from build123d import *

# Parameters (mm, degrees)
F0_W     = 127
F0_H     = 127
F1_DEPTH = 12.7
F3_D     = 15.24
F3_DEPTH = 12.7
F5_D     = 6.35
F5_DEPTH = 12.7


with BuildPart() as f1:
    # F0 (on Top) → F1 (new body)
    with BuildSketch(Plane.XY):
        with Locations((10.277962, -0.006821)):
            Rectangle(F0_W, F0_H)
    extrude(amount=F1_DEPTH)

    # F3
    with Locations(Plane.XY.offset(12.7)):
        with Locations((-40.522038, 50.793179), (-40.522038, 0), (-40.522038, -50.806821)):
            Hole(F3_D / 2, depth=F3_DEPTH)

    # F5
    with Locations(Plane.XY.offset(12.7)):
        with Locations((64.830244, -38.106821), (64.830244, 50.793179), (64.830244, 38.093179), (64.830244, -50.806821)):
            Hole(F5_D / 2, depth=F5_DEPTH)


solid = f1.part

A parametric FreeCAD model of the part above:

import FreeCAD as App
import Part
import Sketcher
Q = App.Units.Quantity

doc = App.newDocument("Part")
body = doc.addObject("PartDesign::Body", "Body")

sketch1 = body.newObject("Sketcher::SketchObject", "Sketch")
sketch1.AttachmentSupport = (doc.getObject("XY_Plane"), [""])
sketch1.MapMode = "FlatFace"
sketch1.addGeometry([
    Part.LineSegment(App.Vector(-53, 63, 0), App.Vector(-53, -64, 0)),
    Part.LineSegment(App.Vector(-53, -64, 0), App.Vector(74, -64, 0)),
    Part.LineSegment(App.Vector(74, -64, 0), App.Vector(74, 63, 0)),
    Part.LineSegment(App.Vector(74, 63, 0), App.Vector(-53, 63, 0)),
], False)
sketch1.addConstraint([
    Sketcher.Constraint("Coincident", 0, 2, 1, 1),
    Sketcher.Constraint("Coincident", 1, 2, 2, 1),
    Sketcher.Constraint("Coincident", 2, 2, 3, 1),
    Sketcher.Constraint("Coincident", 3, 2, 0, 1),
    Sketcher.Constraint("Vertical", 0),
    Sketcher.Constraint("Horizontal", 1),
    Sketcher.Constraint("Vertical", 2),
    Sketcher.Constraint("Horizontal", 3),
    Sketcher.Constraint("Equal", 3, 0),
    Sketcher.Constraint("DistanceX", 1, 1, 1, 2, Q("5 in")),
    Sketcher.Constraint("DistanceY", 0, 2, -1, 1, 63.506821),
    Sketcher.Constraint("DistanceX", 0, 2, -1, 1, 53.222038),
])
pad1 = body.newObject("PartDesign::Pad", "Pad")
pad1.Profile = sketch1
pad1.Length = Q("0.5 in")

sketch2 = body.newObject("Sketcher::SketchObject", "Sketch001")
sketch2.AttachmentSupport = (doc.getObject("XY_Plane"), [""])
sketch2.MapMode = "FlatFace"
sketch2.AttachmentOffset = App.Placement(App.Vector(0, 0, 0.5 * 25.4), App.Rotation())
sketch2.addGeometry([
    Part.Circle(App.Vector(-41, 51, 0), App.Vector(0, 0, 1), 8),
    Part.Circle(App.Vector(-41, 0, 0), App.Vector(0, 0, 1), 8),
    Part.Circle(App.Vector(-41, -51, 0), App.Vector(0, 0, 1), 8),
], False)
sketch2.addConstraint([
    Sketcher.Constraint("Equal", 0, 1),
    Sketcher.Constraint("Equal", 1, 2),
    Sketcher.Constraint("PointOnObject", 1, 3, -1),
    Sketcher.Constraint("Vertical", 0, 3, 1, 3),
    Sketcher.Constraint("Vertical", 1, 3, 2, 3),
    Sketcher.Constraint("Diameter", 0, Q("0.6 in")),
    Sketcher.Constraint("DistanceY", 2, 3, 0, 3, Q("4 in")),
    Sketcher.Constraint("DistanceX", 0, 3, -1, 1, 40.522038),
    Sketcher.Constraint("DistanceY", -1, 1, 0, 3, 50.793179),
])
doc.recompute()
hole = body.newObject("PartDesign::Hole", "Hole")
hole.Profile = sketch2
hole.ThreadType = "None"
hole.Diameter = Q("0.6 in")
hole.DepthType = "Dimension"
hole.Depth = Q("0.5 in")
hole.DrillPoint = "Flat"

sketch3 = body.newObject("Sketcher::SketchObject", "Sketch002")
sketch3.AttachmentSupport = (doc.getObject("XY_Plane"), [""])
sketch3.MapMode = "FlatFace"
sketch3.AttachmentOffset = App.Placement(App.Vector(0, 0, 0.5 * 25.4), App.Rotation())
sketch3.addGeometry([
    Part.Circle(App.Vector(64.8, -38.1, 0), App.Vector(0, 0, 1), 3.2),
    Part.Circle(App.Vector(64.8, 50.8, 0), App.Vector(0, 0, 1), 3.2),
    Part.Circle(App.Vector(64.8, 38.1, 0), App.Vector(0, 0, 1), 3.2),
    Part.Circle(App.Vector(64.8, -50.8, 0), App.Vector(0, 0, 1), 3.2),
], False)
sketch3.addConstraint([
    Sketcher.Constraint("Equal", 0, 1),
    Sketcher.Constraint("Equal", 1, 2),
    Sketcher.Constraint("Equal", 2, 3),
    Sketcher.Constraint("Vertical", 0, 3, 1, 3),
    Sketcher.Constraint("Vertical", 1, 3, 2, 3),
    Sketcher.Constraint("Vertical", 2, 3, 3, 3),
    Sketcher.Constraint("Diameter", 0, Q("0.25 in")),
    Sketcher.Constraint("DistanceY", 0, 3, 2, 3, Q("3 in")),
    Sketcher.Constraint("DistanceY", 3, 3, 1, 3, Q("4 in")),
    Sketcher.Constraint("DistanceY", 0, 3, 1, 3, Q("3.5 in")),
    Sketcher.Constraint("DistanceY", 0, 3, -1, 1, 38.106821),
    Sketcher.Constraint("DistanceX", -1, 1, 0, 3, 64.830244),
])
doc.recompute()
hole2 = body.newObject("PartDesign::Hole", "Hole001")
hole2.Profile = sketch3
hole2.ThreadType = "None"
hole2.Diameter = Q("0.25 in")
hole2.DepthType = "Dimension"
hole2.Depth = Q("0.5 in")
hole2.DrillPoint = "Flat"

doc.recompute()
